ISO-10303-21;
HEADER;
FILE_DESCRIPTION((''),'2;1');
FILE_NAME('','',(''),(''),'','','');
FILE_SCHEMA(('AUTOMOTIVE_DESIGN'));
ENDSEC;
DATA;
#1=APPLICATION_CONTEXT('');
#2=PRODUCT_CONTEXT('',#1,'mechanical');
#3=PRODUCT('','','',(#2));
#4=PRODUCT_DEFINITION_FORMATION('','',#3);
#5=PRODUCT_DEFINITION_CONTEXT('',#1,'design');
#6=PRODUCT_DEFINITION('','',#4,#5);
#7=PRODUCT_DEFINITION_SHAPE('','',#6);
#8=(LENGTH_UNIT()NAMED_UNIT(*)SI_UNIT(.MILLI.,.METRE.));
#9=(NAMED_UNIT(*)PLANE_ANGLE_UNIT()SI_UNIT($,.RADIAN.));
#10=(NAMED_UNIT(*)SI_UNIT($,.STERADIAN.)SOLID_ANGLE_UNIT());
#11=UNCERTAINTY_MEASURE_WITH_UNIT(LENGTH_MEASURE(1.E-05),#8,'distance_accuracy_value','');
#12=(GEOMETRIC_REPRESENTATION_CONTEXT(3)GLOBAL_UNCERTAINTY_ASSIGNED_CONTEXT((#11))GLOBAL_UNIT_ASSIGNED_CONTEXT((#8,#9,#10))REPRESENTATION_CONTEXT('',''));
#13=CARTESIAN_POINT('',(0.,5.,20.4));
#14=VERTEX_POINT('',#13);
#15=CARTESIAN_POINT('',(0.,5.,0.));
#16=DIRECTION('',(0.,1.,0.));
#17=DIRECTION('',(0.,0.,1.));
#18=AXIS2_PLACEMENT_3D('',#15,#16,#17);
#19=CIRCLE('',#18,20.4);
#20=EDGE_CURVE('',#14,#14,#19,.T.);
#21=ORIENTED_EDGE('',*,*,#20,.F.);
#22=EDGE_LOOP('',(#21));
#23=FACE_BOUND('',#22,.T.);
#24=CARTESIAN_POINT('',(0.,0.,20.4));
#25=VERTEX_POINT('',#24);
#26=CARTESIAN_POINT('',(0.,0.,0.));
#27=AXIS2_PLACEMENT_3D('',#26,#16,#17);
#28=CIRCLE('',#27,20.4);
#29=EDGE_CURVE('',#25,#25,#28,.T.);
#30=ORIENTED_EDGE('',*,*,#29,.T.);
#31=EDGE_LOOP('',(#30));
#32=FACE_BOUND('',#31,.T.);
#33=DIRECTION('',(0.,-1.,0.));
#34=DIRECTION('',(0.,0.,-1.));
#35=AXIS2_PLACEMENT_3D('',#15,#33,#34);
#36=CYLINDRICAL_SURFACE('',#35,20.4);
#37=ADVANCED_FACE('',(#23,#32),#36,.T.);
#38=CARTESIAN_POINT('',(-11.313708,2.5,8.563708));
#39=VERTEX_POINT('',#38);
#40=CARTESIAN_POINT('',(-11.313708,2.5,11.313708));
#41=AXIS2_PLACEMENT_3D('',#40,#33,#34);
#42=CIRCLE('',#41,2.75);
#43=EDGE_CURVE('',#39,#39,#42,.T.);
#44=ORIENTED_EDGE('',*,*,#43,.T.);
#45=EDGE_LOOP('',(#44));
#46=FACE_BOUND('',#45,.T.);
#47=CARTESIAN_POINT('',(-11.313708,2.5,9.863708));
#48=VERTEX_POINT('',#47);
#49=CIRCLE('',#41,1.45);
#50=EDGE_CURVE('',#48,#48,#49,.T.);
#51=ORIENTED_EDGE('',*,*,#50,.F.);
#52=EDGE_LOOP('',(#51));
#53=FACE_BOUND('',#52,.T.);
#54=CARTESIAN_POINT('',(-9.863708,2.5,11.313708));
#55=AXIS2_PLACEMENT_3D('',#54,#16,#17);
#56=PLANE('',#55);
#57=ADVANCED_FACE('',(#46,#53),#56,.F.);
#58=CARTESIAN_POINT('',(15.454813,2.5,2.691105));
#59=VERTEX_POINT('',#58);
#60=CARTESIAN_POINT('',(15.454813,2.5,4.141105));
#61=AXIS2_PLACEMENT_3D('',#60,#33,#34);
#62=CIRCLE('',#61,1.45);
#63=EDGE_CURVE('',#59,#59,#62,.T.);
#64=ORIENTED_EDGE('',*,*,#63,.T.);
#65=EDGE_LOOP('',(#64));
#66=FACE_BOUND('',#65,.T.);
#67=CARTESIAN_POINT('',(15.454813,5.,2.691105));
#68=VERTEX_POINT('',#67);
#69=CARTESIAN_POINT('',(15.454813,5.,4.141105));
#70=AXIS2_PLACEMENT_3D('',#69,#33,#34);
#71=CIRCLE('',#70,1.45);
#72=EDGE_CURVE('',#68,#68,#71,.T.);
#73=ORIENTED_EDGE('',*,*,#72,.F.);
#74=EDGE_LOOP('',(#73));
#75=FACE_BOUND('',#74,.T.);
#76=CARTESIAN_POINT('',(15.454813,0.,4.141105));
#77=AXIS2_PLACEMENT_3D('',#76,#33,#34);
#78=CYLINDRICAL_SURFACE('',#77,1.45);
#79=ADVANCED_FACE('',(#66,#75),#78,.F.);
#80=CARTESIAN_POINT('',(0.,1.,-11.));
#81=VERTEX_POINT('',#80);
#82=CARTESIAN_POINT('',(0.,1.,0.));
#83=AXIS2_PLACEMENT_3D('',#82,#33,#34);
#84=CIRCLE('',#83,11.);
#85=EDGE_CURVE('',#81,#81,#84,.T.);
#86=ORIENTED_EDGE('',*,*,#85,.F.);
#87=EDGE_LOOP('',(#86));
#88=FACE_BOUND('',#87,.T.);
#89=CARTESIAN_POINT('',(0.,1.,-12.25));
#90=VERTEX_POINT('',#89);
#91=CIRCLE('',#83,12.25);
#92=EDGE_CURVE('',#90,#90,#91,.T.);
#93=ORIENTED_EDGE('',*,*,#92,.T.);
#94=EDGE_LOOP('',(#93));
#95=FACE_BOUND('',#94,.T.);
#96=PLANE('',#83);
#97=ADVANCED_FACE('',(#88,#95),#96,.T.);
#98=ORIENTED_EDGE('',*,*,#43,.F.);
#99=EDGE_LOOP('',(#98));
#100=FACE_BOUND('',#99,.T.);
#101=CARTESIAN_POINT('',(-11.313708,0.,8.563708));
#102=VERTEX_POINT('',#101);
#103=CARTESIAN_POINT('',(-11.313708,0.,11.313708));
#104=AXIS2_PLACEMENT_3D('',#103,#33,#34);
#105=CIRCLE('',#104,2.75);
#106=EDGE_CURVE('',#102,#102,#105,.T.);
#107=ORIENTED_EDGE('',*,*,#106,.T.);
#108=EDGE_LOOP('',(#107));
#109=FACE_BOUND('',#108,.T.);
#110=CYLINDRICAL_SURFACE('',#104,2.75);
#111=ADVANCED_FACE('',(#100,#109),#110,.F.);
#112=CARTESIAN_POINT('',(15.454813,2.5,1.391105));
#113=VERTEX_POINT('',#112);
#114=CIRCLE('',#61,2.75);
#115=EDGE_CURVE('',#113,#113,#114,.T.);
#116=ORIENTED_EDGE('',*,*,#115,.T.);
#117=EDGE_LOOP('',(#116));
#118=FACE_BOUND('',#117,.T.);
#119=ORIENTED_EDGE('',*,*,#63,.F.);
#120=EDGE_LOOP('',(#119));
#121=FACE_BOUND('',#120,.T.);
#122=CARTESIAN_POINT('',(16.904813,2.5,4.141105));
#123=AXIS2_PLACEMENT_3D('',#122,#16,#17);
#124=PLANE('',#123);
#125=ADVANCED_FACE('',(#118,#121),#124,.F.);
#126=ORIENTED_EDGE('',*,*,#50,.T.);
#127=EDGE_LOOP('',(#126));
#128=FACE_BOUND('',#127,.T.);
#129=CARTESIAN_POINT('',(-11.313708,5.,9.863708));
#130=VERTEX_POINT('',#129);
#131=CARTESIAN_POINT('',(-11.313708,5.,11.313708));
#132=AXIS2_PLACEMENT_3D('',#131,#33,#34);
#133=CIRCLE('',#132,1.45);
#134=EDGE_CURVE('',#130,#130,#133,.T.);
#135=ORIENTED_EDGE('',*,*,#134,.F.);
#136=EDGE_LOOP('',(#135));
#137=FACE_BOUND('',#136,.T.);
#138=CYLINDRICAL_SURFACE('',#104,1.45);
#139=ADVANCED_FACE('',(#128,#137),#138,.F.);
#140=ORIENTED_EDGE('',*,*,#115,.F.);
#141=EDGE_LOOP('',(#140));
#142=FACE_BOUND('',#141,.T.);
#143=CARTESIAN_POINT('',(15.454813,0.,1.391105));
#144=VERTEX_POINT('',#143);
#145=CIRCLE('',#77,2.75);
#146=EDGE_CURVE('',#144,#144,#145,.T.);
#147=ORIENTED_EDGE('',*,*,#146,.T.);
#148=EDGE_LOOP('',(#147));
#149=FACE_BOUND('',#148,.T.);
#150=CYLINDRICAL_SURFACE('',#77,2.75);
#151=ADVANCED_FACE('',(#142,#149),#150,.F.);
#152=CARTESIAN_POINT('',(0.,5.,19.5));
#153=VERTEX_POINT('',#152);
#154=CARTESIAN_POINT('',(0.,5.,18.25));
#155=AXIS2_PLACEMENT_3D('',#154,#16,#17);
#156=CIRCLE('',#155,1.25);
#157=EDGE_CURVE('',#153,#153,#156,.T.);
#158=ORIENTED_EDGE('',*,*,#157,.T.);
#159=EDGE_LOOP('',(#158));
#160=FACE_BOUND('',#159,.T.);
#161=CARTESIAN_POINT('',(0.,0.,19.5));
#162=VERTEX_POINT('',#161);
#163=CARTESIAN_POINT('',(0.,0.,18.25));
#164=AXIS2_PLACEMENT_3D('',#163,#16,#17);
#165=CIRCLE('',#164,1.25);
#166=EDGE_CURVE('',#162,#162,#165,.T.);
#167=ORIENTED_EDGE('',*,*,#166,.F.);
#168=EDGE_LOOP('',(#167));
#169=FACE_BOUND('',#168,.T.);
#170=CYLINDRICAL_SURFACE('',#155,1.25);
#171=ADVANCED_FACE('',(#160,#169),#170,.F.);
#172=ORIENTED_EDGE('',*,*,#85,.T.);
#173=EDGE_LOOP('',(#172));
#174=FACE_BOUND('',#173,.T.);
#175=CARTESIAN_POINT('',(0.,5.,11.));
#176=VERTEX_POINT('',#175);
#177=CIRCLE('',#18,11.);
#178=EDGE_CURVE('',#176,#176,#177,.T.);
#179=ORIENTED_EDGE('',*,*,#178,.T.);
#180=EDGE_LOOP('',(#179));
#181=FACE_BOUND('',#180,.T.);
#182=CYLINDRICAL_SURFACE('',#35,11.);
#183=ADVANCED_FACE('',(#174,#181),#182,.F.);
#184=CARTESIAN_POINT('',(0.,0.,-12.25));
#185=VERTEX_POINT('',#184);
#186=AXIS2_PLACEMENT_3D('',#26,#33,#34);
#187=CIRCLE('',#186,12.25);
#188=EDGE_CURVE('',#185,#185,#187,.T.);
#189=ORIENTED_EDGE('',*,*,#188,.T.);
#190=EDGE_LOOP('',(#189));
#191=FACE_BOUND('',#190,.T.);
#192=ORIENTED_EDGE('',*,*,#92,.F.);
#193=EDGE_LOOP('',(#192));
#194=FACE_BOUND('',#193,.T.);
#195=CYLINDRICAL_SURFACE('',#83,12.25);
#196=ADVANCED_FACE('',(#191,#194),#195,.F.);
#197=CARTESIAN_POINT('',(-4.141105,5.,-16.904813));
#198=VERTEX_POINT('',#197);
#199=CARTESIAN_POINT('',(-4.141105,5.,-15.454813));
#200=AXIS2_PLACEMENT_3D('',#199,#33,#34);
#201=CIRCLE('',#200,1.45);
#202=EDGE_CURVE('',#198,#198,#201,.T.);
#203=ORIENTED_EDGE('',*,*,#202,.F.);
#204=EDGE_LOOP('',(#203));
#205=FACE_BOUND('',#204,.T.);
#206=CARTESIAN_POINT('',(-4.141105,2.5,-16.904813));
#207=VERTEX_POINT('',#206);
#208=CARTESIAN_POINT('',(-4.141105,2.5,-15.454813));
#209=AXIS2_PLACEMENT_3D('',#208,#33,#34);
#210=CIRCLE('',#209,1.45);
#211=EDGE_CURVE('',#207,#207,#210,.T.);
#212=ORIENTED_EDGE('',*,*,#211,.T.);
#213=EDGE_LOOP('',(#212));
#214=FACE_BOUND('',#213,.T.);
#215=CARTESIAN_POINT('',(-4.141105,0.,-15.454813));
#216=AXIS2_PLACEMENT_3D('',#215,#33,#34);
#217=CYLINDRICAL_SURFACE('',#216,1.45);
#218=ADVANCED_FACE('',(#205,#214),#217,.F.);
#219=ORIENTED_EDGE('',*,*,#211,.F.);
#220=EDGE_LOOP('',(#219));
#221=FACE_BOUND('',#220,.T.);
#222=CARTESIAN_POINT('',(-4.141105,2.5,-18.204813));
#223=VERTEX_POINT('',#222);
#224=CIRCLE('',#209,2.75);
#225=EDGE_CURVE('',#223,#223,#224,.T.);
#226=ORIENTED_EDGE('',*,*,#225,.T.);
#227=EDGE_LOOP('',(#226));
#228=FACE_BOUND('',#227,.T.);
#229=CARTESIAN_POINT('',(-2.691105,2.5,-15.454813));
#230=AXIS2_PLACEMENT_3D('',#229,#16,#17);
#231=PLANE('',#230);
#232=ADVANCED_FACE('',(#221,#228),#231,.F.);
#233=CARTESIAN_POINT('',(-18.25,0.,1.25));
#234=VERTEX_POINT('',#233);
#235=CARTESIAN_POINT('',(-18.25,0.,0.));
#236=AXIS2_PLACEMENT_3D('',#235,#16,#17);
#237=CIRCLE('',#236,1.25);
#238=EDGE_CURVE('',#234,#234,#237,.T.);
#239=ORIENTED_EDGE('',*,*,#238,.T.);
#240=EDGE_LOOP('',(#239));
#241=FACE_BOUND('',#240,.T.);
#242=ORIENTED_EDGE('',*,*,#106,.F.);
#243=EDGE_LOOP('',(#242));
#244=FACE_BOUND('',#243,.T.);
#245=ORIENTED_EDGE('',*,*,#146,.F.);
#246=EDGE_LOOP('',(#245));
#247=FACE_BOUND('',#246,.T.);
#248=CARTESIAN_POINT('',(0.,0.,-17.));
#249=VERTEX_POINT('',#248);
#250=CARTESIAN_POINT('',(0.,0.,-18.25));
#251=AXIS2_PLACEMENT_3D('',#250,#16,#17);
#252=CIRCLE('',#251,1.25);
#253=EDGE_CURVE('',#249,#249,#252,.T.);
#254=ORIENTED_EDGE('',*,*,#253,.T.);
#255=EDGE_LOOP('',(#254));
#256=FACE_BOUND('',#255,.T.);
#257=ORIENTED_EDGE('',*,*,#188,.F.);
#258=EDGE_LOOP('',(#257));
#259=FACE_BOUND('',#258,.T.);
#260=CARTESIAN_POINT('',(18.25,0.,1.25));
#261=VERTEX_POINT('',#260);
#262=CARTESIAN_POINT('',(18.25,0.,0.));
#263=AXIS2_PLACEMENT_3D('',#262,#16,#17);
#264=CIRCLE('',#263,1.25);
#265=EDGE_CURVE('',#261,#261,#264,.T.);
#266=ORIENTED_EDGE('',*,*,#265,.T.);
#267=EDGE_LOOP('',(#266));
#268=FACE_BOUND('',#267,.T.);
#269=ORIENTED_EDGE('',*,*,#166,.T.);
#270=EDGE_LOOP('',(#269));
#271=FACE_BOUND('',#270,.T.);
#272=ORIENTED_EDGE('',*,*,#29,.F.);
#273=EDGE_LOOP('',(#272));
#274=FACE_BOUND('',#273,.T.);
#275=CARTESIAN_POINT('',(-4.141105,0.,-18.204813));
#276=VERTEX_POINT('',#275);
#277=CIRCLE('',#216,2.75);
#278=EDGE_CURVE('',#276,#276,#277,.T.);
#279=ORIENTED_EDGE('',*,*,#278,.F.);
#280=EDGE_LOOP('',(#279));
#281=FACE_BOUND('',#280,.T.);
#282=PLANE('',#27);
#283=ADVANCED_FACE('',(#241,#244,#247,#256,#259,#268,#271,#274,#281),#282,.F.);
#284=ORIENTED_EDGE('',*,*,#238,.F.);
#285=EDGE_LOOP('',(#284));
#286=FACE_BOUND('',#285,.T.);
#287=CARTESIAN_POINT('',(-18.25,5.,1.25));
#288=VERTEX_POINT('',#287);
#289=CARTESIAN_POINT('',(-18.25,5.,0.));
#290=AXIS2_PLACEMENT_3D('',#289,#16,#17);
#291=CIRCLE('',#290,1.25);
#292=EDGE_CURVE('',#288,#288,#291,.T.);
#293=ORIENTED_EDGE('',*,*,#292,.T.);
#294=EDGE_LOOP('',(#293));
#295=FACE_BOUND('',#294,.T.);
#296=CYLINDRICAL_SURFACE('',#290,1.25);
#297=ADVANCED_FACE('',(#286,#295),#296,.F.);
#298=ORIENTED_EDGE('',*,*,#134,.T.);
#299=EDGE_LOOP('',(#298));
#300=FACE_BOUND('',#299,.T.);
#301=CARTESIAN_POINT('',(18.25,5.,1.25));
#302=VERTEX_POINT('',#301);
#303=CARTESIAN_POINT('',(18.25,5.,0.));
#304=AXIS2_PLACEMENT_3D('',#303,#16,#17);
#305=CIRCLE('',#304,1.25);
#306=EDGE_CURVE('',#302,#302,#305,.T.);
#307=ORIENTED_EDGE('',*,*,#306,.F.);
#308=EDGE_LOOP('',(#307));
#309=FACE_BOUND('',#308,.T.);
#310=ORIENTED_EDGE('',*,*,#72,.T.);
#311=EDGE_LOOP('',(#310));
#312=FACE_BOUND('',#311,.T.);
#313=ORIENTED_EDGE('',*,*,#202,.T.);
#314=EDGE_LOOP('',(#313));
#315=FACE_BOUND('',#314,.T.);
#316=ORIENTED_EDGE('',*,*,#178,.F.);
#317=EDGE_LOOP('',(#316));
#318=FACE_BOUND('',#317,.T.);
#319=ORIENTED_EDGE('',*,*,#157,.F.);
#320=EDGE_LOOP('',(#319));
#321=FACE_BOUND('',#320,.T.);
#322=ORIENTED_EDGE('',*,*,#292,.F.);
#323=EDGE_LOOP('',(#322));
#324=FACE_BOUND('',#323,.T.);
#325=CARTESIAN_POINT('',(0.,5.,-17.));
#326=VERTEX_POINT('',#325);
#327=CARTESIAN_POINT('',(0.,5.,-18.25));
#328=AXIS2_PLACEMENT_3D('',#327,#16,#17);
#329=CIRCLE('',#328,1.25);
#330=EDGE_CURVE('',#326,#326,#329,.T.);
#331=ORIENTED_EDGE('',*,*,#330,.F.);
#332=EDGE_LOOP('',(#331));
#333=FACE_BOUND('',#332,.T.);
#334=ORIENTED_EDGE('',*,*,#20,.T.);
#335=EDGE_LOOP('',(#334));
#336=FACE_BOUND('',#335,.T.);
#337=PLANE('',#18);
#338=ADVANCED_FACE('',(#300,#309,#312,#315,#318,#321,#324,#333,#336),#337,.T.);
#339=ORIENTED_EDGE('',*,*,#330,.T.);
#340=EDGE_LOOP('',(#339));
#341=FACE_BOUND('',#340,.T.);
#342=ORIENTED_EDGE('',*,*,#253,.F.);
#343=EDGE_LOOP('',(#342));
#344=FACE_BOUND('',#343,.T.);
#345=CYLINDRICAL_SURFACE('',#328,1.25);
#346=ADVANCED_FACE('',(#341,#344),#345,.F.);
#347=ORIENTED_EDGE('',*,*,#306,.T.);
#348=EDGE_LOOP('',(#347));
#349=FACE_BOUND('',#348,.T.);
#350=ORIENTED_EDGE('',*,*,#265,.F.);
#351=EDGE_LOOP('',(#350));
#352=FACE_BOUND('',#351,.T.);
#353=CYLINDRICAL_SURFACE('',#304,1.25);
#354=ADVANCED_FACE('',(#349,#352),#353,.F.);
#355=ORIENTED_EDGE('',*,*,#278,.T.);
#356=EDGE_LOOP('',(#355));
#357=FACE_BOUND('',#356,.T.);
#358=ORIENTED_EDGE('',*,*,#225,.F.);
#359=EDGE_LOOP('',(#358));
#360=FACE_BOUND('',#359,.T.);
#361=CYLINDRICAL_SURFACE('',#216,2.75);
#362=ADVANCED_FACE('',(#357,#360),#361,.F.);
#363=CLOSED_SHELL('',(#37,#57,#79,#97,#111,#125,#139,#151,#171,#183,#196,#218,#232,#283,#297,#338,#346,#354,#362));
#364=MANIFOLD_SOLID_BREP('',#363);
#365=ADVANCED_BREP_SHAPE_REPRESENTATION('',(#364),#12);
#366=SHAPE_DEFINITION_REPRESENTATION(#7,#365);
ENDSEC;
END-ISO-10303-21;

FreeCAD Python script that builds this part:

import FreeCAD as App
import Part
import Sketcher

doc = App.newDocument("Part")
params = doc.addObject("Spreadsheet::Sheet", "Params")
for row, (alias, value) in enumerate([
    ("sketch1_diameter", "22 mm"),
    ("sketch1_diameter2", "40.8 mm"),
    ("pad1_length", "5 mm"),
    ("sketch2_diameter", "2.5 mm"),
    ("hole_diameter", "2.5 mm"),
    ("sketch3_diameter", "2.9 mm"),
    ("hole2_diameter", "2.9 mm"),
    ("hole2_cbore_diameter", "5.5 mm"),
    ("hole2_cbore_depth", "2.5 mm"),
    ("sketch4_diameter", "24.5 mm"),
    ("pocket1_length", "1 mm"),
], start=1):
    params.set(f"A{row}", alias)
    params.set(f"B{row}", "=" + value)
    params.setAlias(f"B{row}", alias)

body = doc.addObject("PartDesign::Body", "Body")

sketch1 = doc.addObject("Sketcher::SketchObject", "Sketch")
body.addObject(sketch1)
sketch1.AttachmentSupport = (doc.XZ_Plane, [""])
sketch1.MapMode = "FlatFace"
sketch1.addGeometry([
    Part.Circle(App.Vector(0, 0, 0), App.Vector(0, 0, 1), 20),
    Part.Circle(App.Vector(0, 0, 0), App.Vector(0, 0, 1), 11),
], False)
sketch1.addConstraint([
    Sketcher.Constraint("Coincident", 0, 3, -1, 1),
    Sketcher.Constraint("Coincident", 1, 3, -1, 1),
    Sketcher.Constraint("Diameter", 1, 22.0),
    Sketcher.Constraint("Diameter", 0, 40.8),
])
sketch1.setExpression("Constraints[2]", "Params.sketch1_diameter")
sketch1.setExpression("Constraints[3]", "Params.sketch1_diameter2")
pad1 = doc.addObject("PartDesign::Pad", "Pad")
body.addObject(pad1)
pad1.Profile = sketch1
pad1.setExpression("Length", "Params.pad1_length")
pad1.Reversed = True

sketch2 = doc.addObject("Sketcher::SketchObject", "Sketch001")
body.addObject(sketch2)
sketch2.AttachmentSupport = (doc.XZ_Plane, [""])
sketch2.MapMode = "FlatFace"
sketch2.AttachmentOffset = App.Placement(App.Vector(0, 0, -5), App.Rotation())
sketch2.addGeometry([
    Part.Circle(App.Vector(-18.2, 0, 0), App.Vector(0, 0, 1), 1.2),
    Part.Circle(App.Vector(0, -18.2, 0), App.Vector(0, 0, 1), 1.2),
    Part.Circle(App.Vector(18.2, 0, 0), App.Vector(0, 0, 1), 1.2),
    Part.Circle(App.Vector(0, 18.2, 0), App.Vector(0, 0, 1), 1.2),
], False)
sketch2.addConstraint([
    Sketcher.Constraint("Equal", 0, 1),
    Sketcher.Constraint("Equal", 1, 2),
    Sketcher.Constraint("Equal", 2, 3),
    Sketcher.Constraint("Symmetric", 0, 3, 2, 3, -1, 1),
    Sketcher.Constraint("Symmetric", 1, 3, 3, 3, -1, 1),
    Sketcher.Constraint("PointOnObject", 0, 3, -1),
    Sketcher.Constraint("PointOnObject", 1, 3, -2),
    Sketcher.Constraint("Diameter", 0, 2.5),
    Sketcher.Constraint("DistanceX", 0, 3, 2, 3, 36.5),
    Sketcher.Constraint("DistanceY", 1, 3, 3, 3, 36.5),
])
sketch2.setExpression("Constraints[7]", "Params.sketch2_diameter")
doc.recompute()
hole = doc.addObject("PartDesign::Hole", "Hole")
body.addObject(hole)
hole.Profile = sketch2
hole.ThreadType = "None"
hole.setExpression("Diameter", "Params.hole_diameter")
hole.DepthType = "ThroughAll"
hole.Reversed = True

sketch3 = doc.addObject("Sketcher::SketchObject", "Sketch002")
body.addObject(sketch3)
sketch3.AttachmentSupport = (doc.XZ_Plane, [""])
sketch3.MapMode = "FlatFace"
sketch3.addGeometry([
    Part.Circle(App.Vector(-11.3, 11.3, 0), App.Vector(0, 0, 1), 1.4),
    Part.Circle(App.Vector(-4.1, -15.5, 0), App.Vector(0, 0, 1), 1.4),
    Part.Circle(App.Vector(15.5, 4.1, 0), App.Vector(0, 0, 1), 1.4),
], False)
sketch3.addConstraint([
    Sketcher.Constraint("Equal", 0, 1),
    Sketcher.Constraint("Equal", 1, 2),
    Sketcher.Constraint("Diameter", 0, 2.9),
    Sketcher.Constraint("DistanceX", 0, 3, -1, 1, 11.313708),
    Sketcher.Constraint("DistanceY", -1, 1, 0, 3, 11.313708),
    Sketcher.Constraint("DistanceY", 1, 3, 0, 3, 26.768522),
    Sketcher.Constraint("DistanceX", 0, 3, 2, 3, 26.768522),
    Sketcher.Constraint("DistanceX", 1, 3, -1, 1, 4.141105),
    Sketcher.Constraint("DistanceY", -1, 1, 2, 3, 4.141105),
])
sketch3.setExpression("Constraints[2]", "Params.sketch3_diameter")
doc.recompute()
hole2 = doc.addObject("PartDesign::Hole", "Hole001")
body.addObject(hole2)
hole2.Profile = sketch3
hole2.ThreadType = "None"
hole2.setExpression("Diameter", "Params.hole2_diameter")
hole2.DepthType = "ThroughAll"
hole2.HoleCutType = "Counterbore"
hole2.setExpression("HoleCutDiameter", "Params.hole2_cbore_diameter")
hole2.setExpression("HoleCutDepth", "Params.hole2_cbore_depth")

sketch4 = doc.addObject("Sketcher::SketchObject", "Sketch003")
body.addObject(sketch4)
sketch4.AttachmentSupport = (doc.XZ_Plane, [""])
sketch4.MapMode = "FlatFace"
sketch4.addGeometry(Part.Circle(App.Vector(0, 0, 0), App.Vector(0, 0, 1), 12), False)
sketch4.addConstraint([
    Sketcher.Constraint("Coincident", 0, 3, -1, 1),
    Sketcher.Constraint("Diameter", 0, 24.5),
])
sketch4.setExpression("Constraints[1]", "Params.sketch4_diameter")
pocket1 = doc.addObject("PartDesign::Pocket", "Pocket")
body.addObject(pocket1)
pocket1.Profile = sketch4
pocket1.setExpression("Length", "Params.pocket1_length")

doc.recompute()
